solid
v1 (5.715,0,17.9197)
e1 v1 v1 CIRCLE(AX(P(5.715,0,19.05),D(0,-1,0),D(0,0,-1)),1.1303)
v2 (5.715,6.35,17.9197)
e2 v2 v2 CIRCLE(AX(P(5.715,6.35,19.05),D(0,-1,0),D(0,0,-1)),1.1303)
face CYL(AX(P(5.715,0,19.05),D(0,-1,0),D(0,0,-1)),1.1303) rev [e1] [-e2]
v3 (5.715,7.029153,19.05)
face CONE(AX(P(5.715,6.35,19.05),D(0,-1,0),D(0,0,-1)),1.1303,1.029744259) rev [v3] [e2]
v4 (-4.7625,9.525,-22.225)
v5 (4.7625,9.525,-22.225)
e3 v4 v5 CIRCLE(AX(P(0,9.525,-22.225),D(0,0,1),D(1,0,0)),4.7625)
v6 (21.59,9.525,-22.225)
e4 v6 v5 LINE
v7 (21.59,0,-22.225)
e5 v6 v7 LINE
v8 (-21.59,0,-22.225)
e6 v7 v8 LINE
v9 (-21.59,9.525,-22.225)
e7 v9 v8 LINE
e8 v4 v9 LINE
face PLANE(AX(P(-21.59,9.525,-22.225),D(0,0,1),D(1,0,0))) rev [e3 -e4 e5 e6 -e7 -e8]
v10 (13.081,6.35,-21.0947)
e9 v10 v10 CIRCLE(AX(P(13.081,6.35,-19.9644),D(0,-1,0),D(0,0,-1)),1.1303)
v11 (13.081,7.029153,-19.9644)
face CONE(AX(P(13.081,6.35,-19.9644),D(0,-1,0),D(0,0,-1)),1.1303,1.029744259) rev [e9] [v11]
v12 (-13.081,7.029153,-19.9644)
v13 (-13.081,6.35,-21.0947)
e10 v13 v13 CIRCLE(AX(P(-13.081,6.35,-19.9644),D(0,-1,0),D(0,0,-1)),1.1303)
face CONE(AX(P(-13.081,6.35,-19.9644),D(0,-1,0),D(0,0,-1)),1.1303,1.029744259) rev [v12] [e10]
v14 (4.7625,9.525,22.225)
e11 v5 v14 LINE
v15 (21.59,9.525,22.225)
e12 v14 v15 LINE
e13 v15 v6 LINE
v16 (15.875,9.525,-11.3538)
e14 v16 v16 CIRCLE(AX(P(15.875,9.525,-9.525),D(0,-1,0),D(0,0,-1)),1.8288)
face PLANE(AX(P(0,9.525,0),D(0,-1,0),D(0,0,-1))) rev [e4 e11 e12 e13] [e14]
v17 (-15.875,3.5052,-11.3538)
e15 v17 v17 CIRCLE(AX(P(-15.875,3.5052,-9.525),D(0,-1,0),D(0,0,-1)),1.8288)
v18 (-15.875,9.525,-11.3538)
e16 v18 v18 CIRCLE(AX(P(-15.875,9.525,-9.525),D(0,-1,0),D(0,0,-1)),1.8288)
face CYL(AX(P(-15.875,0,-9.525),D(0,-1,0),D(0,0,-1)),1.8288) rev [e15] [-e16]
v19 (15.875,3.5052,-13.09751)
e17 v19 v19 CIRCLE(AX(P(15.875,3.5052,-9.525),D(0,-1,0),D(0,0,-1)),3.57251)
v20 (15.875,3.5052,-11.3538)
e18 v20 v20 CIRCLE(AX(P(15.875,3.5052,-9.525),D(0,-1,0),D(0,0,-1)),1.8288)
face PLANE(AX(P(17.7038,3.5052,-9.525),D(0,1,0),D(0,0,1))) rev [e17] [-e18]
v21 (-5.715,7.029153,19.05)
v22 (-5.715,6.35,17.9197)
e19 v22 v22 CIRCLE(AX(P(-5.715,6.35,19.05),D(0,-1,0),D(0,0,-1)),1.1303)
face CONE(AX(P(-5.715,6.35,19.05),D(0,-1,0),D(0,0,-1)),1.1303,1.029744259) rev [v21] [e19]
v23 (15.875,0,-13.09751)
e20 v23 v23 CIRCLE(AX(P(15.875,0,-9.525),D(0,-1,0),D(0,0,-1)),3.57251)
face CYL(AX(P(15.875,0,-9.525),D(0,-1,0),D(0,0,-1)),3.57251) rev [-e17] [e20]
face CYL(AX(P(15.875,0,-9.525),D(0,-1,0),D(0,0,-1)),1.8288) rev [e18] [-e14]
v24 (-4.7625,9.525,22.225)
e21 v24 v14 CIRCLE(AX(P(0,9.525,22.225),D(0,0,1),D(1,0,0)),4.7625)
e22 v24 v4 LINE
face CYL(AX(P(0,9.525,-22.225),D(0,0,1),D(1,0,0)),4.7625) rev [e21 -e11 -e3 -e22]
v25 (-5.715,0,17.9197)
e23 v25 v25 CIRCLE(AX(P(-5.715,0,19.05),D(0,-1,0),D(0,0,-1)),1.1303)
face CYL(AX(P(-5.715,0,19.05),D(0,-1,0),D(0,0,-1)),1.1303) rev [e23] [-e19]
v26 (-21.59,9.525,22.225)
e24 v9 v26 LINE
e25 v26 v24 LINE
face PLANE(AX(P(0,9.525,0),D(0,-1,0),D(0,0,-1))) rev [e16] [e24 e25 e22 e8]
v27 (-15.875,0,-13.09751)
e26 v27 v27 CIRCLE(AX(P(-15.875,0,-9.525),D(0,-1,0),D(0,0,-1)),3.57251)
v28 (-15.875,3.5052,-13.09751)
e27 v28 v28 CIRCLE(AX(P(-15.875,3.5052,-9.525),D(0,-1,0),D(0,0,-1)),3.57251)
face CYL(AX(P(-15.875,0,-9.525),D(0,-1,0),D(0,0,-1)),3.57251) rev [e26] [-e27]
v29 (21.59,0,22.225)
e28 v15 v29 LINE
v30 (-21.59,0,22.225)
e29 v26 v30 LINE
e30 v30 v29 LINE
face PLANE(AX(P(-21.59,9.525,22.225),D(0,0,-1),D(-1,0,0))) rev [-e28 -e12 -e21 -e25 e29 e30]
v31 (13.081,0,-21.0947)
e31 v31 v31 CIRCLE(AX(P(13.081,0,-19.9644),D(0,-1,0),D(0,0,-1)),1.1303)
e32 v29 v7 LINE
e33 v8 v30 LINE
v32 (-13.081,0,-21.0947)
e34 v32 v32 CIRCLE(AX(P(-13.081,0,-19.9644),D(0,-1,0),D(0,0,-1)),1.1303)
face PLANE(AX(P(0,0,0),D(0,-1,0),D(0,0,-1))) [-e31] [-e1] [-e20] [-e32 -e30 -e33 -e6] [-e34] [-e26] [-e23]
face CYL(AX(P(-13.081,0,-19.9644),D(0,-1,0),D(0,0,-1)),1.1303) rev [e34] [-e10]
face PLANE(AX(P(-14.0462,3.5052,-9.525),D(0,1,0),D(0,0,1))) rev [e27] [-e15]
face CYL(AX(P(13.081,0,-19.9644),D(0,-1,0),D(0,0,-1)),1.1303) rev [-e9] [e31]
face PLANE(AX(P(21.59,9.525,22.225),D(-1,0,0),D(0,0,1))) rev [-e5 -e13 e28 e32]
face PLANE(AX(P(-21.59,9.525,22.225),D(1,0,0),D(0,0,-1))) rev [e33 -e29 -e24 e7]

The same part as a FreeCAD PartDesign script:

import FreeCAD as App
import Part
import Sketcher

V = App.Vector
Q = App.Units.Quantity

doc = App.newDocument("Part")
params = doc.addObject("Spreadsheet::Sheet", "Params")
for row, (alias, value) in enumerate([
    ("sketch1_width", "1.7 in"),
    ("sketch1_height", "1.75 in"),
    ("pad1_length", "0.375 in"),
    ("sketch2_diameter", "0.375 in"),
    ("sketch3_diameter", "0.089 in"),
    ("hole_diameter", "0.089 in"),
    ("hole_depth", "0.25 in"),
    ("sketch4_diameter", "0.144 in"),
    ("hole2_diameter", "0.144 in"),
    ("hole2_cbore_diameter", "0.2813 in"),
    ("hole2_cbore_depth", "0.138 in"),
], start=1):
    params.set(f"A{row}", alias)
    params.set(f"B{row}", "=" + value)
    params.setAlias(f"B{row}", alias)

body = doc.addObject("PartDesign::Body", "Body")

# Sketch on XZ plane
sketch1 = body.newObject("Sketcher::SketchObject", "Sketch")
sketch1.AttachmentSupport = (doc.getObject("XZ_Plane"), [""])
sketch1.MapMode = "FlatFace"
sketch1.addGeometry([
    Part.LineSegment(V(-21.59, -22.225, 0), V(-21.59, 22.225, 0)),
    Part.LineSegment(V(-21.59, 22.225, 0), V(21.59, 22.225, 0)),
    Part.LineSegment(V(21.59, 22.225, 0), V(21.59, -22.225, 0)),
    Part.LineSegment(V(21.59, -22.225, 0), V(-21.59, -22.225, 0)),
], False)
sketch1.addConstraint([
    Sketcher.Constraint("Coincident", 0, 2, 1, 1),
    Sketcher.Constraint("Coincident", 1, 2, 2, 1),
    Sketcher.Constraint("Coincident", 2, 2, 3, 1),
    Sketcher.Constraint("Coincident", 3, 2, 0, 1),
    Sketcher.Constraint("Vertical", 0),
    Sketcher.Constraint("Horizontal", 1),
    Sketcher.Constraint("Vertical", 2),
    Sketcher.Constraint("Horizontal", 3),
    Sketcher.Constraint("Symmetric", 0, 2, 2, 2, -1, 1),
    Sketcher.Constraint("DistanceX", 1, 1, 1, 2, Q("1.7 in")),
    Sketcher.Constraint("DistanceY", 0, 1, 0, 2, Q("1.75 in")),
])
sketch1.setExpression("Constraints[9]", "Params.sketch1_width")
sketch1.setExpression("Constraints[10]", "Params.sketch1_height")
pad1 = body.newObject("PartDesign::Pad", "Pad")
pad1.Profile = sketch1
pad1.setExpression("Length", "Params.pad1_length")
pad1.Reversed = True

# Sketch on XY plane
sketch2 = body.newObject("Sketcher::SketchObject", "Sketch001")
sketch2.AttachmentSupport = (doc.getObject("XY_Plane"), [""])
sketch2.MapMode = "FlatFace"
sketch2.AttachmentOffset = App.Placement(V(0, 0, 0.875 * 25.4), App.Rotation())
sketch2.addGeometry(Part.Circle(V(0, 9.525, 0), V(0, 0, 1), 4.7625), False)
sketch2.addConstraint([
    Sketcher.Constraint("PointOnObject", 0, 3, -2),
    Sketcher.Constraint("Diameter", 0, Q("0.375 in")),
    Sketcher.Constraint("DistanceY", -1, 1, 0, 3, Q("0.375 in")),
])
sketch2.setExpression("Constraints[1]", "Params.sketch2_diameter")
pocket1 = body.newObject("PartDesign::Pocket", "Pocket")
pocket1.Profile = sketch2
pocket1.Type = "ThroughAll"

# Sketch on XZ plane
sketch3 = body.newObject("Sketcher::SketchObject", "Sketch002")
sketch3.AttachmentSupport = (doc.getObject("XZ_Plane"), [""])
sketch3.MapMode = "FlatFace"
sketch3.addGeometry([
    Part.Circle(V(5.715, 19.05, 0), V(0, 0, 1), 1.1303),
    Part.Circle(V(-5.715, 19.05, 0), V(0, 0, 1), 1.1303),
    Part.Circle(V(-13.081, -19.9644, 0), V(0, 0, 1), 1.1303),
    Part.Circle(V(13.081, -19.9644, 0), V(0, 0, 1), 1.1303),
], False)
sketch3.addConstraint([
    Sketcher.Constraint("Equal", 0, 1),
    Sketcher.Constraint("Equal", 1, 2),
    Sketcher.Constraint("Equal", 2, 3),
    Sketcher.Constraint("Symmetric", 0, 3, 1, 3, -2),
    Sketcher.Constraint("Symmetric", 2, 3, 3, 3, -2),
    Sketcher.Constraint("Diameter", 0, Q("0.089 in")),
    Sketcher.Constraint("DistanceY", -1, 1, 0, 3, Q("0.75 in")),
    Sketcher.Constraint("DistanceX", 1, 3, 0, 3, Q("0.45 in")),
    Sketcher.Constraint("DistanceX", 2, 3, 1, 3, Q("0.29 in")),
    Sketcher.Constraint("DistanceY", 2, 3, -1, 1, Q("0.786 in")),
])
sketch3.setExpression("Constraints[5]", "Params.sketch3_diameter")
doc.recompute()
hole = body.newObject("PartDesign::Hole", "Hole")
hole.Profile = sketch3
hole.ThreadType = "None"
hole.setExpression("Diameter", "Params.hole_diameter")
hole.DepthType = "Dimension"
hole.setExpression("Depth", "Params.hole_depth")
hole.DrillPoint = "Angled"
hole.DrillPointAngle = 118

# Sketch on XZ plane
sketch4 = body.newObject("Sketcher::SketchObject", "Sketch003")
sketch4.AttachmentSupport = (doc.getObject("XZ_Plane"), [""])
sketch4.MapMode = "FlatFace"
sketch4.addGeometry([
    Part.Circle(V(15.875, -9.525, 0), V(0, 0, 1), 1.8288),
    Part.Circle(V(-15.875, -9.525, 0), V(0, 0, 1), 1.8288),
], False)
sketch4.addConstraint([
    Sketcher.Constraint("Equal", 0, 1),
    Sketcher.Constraint("Symmetric", 0, 3, 1, 3, -2),
    Sketcher.Constraint("Diameter", 0, Q("0.144 in")),
    Sketcher.Constraint("DistanceX", 1, 3, 0, 3, Q("1.25 in")),
    Sketcher.Constraint("DistanceY", 0, 3, -1, 1, Q("0.375 in")),
])
sketch4.setExpression("Constraints[2]", "Params.sketch4_diameter")
doc.recompute()
hole2 = body.newObject("PartDesign::Hole", "Hole001")
hole2.Profile = sketch4
hole2.ThreadType = "None"
hole2.setExpression("Diameter", "Params.hole2_diameter")
hole2.DepthType = "ThroughAll"
hole2.HoleCutType = "Counterbore"
hole2.setExpression("HoleCutDiameter", "Params.hole2_cbore_diameter")
hole2.setExpression("HoleCutDepth", "Params.hole2_cbore_depth")

doc.recompute()
